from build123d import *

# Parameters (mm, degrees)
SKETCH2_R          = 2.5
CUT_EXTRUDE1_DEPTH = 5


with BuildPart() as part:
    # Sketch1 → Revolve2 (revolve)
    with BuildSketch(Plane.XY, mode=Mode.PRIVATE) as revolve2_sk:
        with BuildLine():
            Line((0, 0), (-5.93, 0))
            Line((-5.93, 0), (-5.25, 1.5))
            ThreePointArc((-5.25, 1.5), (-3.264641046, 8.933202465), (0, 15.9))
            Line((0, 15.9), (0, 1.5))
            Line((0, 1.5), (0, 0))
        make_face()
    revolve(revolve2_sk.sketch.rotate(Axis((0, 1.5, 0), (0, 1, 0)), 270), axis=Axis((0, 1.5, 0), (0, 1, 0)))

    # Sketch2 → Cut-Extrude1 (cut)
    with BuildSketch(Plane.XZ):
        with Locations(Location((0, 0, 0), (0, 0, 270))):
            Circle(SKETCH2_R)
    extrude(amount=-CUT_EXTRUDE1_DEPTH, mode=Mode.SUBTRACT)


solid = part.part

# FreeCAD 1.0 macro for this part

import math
import FreeCAD as App
import Part
import Sketcher
Q = App.Units.Quantity

doc = App.newDocument("Part")
body = doc.addObject("PartDesign::Body", "Body")

# Sketch on XY plane
sketch1 = body.newObject("Sketcher::SketchObject", "Sketch")
sketch1.AttachmentSupport = (doc.getObject("XY_Plane"), [""])
sketch1.MapMode = "FlatFace"
sketch1.addGeometry([
    Part.LineSegment(App.Vector(-5.9, 0, 0), App.Vector(0, 0, 0)),
    Part.LineSegment(App.Vector(0, 0, 0), App.Vector(0, 15.9, 0)),
    Part.ArcOfCircle(Part.Circle(App.Vector(37.6, -6, 0), App.Vector(0, 0, 1), 43.5), math.radians(150), math.radians(170)),
    Part.LineSegment(App.Vector(-5.2, 1.5, 0), App.Vector(-5.9, 0, 0)),
], False)
sketch1.addConstraint([
    Sketcher.Constraint("Coincident", 0, 2, 1, 1),
    Sketcher.Constraint("Coincident", 1, 2, 2, 1),
    Sketcher.Constraint("Coincident", 2, 2, 3, 1),
    Sketcher.Constraint("Coincident", 3, 2, 0, 1),
    Sketcher.Constraint("Horizontal", 0),
    Sketcher.Constraint("Vertical", 1),
    Sketcher.Constraint("Coincident", 0, 2, -1, 1),
    Sketcher.Constraint("DistanceY", 1, 1, 1, 2, Q("15.9 mm")),
    Sketcher.Constraint("DistanceX", 0, 1, 0, 2, Q("5.93 mm")),
    Sketcher.Constraint("DistanceY", -1, 1, 2, 2, Q("1.5 mm")),
    Sketcher.Constraint("DistanceX", 2, 2, -1, 1, Q("5.25 mm")),
    Sketcher.Constraint("Radius", 2, Q("43.472303 mm")),
])
revolution = body.newObject("PartDesign::Revolution", "Revolution")
revolution.Profile = sketch1
revolution.ReferenceAxis = (sketch1, ["V_Axis"])
revolution.Angle = 360

# Sketch on XZ plane
sketch2 = body.newObject("Sketcher::SketchObject", "Sketch001")
sketch2.AttachmentSupport = (doc.getObject("XZ_Plane"), [""])
sketch2.MapMode = "FlatFace"
sketch2.addGeometry(Part.Circle(App.Vector(0, 0, 0), App.Vector(0, 0, 1), 2.5), False)
sketch2.addConstraint([
    Sketcher.Constraint("Coincident", 0, 3, -1, 1),
    Sketcher.Constraint("Diameter", 0, Q("5 mm")),
])
pocket1 = body.newObject("PartDesign::Pocket", "Pocket")
pocket1.Profile = sketch2
pocket1.Length = 5

doc.recompute()
